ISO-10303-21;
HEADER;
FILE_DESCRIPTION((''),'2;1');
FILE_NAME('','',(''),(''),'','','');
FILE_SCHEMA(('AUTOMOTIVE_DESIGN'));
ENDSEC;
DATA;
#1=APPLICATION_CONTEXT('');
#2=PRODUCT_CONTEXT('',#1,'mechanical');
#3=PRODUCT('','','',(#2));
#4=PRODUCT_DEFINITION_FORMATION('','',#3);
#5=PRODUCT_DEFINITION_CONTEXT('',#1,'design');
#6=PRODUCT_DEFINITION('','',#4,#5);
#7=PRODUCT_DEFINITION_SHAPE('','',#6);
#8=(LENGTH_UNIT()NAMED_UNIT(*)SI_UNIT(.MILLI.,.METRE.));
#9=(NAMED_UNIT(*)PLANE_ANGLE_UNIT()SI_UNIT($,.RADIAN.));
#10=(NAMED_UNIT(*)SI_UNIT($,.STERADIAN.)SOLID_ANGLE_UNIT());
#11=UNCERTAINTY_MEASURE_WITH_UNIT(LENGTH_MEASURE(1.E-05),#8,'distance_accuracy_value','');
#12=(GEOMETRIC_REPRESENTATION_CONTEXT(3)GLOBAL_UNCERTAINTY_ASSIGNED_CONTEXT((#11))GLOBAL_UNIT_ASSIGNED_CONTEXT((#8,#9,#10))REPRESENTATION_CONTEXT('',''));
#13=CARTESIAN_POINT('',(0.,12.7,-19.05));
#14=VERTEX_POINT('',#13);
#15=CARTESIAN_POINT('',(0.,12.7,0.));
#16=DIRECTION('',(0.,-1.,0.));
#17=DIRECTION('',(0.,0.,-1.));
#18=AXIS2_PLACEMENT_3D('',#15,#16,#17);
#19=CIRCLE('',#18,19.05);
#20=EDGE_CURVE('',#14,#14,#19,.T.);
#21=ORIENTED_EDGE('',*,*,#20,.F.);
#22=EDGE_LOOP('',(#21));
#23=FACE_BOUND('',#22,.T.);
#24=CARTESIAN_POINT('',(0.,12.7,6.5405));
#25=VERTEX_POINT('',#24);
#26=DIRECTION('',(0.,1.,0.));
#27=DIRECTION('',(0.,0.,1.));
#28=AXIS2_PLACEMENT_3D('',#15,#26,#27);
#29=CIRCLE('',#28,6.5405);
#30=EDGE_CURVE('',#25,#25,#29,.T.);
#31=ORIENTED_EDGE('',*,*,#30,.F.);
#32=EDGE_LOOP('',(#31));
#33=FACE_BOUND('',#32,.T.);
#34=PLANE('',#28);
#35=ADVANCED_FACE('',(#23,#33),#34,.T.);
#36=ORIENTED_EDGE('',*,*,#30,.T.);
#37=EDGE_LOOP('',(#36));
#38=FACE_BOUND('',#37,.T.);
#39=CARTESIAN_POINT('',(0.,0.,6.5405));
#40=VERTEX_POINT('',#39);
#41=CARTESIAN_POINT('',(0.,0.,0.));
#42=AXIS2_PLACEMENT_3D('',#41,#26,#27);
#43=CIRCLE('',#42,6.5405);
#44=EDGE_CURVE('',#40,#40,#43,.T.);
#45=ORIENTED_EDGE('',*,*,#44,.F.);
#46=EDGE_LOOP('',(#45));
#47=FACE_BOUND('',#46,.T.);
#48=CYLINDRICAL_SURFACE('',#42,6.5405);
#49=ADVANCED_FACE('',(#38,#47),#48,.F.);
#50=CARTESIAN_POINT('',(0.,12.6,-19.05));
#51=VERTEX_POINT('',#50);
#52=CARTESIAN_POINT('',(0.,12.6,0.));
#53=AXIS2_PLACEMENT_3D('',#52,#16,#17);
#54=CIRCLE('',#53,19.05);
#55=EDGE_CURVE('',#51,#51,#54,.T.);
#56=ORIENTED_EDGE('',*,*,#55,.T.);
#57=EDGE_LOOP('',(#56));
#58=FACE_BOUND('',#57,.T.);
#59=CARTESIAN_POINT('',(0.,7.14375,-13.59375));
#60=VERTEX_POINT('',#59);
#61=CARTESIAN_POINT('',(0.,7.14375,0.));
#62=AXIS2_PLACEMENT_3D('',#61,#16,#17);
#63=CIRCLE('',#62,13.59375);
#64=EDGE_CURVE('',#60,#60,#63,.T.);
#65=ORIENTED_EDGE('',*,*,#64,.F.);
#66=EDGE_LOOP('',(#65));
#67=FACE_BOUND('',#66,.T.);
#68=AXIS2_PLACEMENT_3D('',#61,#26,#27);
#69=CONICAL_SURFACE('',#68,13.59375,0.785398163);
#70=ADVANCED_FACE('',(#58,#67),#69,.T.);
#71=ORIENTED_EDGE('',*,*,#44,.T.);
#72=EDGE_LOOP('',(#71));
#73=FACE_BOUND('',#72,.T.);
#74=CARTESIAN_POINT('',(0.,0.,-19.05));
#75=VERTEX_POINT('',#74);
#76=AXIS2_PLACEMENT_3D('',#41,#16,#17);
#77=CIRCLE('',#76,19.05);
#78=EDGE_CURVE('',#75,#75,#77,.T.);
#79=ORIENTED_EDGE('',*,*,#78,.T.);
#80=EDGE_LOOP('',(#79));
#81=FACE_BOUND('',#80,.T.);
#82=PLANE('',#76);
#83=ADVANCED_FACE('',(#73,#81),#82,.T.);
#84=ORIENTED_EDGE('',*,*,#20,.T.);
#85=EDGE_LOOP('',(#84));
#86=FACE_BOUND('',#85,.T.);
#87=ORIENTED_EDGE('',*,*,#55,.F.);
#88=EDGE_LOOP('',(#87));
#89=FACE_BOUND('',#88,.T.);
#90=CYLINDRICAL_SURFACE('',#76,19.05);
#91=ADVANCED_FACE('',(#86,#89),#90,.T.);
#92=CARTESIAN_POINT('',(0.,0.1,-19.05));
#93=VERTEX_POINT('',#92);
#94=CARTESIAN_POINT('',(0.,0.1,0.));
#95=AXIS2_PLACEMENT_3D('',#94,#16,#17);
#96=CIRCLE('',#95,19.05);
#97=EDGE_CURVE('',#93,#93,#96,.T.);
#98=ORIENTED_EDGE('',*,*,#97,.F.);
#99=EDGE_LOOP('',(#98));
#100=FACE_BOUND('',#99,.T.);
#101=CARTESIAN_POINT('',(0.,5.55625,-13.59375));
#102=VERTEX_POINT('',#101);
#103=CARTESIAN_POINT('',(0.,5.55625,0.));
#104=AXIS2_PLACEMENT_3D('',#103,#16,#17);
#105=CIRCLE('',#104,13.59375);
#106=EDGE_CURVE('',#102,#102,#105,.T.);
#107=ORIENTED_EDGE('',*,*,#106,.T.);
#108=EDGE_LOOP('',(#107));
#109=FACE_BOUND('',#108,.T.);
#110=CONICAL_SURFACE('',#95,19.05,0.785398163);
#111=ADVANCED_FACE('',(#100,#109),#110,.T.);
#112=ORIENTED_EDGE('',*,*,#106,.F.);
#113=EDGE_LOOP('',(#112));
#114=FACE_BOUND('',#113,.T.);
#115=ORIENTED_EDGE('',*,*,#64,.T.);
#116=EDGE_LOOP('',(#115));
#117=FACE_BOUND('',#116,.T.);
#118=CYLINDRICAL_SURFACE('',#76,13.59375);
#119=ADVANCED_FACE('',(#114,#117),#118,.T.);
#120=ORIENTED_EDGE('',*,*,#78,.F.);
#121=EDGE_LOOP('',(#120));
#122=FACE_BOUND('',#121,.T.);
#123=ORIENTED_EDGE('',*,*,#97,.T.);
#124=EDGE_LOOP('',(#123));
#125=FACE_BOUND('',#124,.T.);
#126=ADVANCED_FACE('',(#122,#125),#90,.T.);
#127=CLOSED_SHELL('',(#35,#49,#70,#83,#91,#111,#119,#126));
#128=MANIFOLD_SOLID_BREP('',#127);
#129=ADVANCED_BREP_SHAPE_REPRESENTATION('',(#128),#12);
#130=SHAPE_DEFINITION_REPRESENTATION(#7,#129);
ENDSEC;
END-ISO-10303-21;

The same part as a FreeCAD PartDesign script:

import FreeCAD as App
import Part
import Sketcher

V = App.Vector
Q = App.Units.Quantity

doc = App.newDocument("Part")
params = doc.addObject("Spreadsheet::Sheet", "Params")
for row, (alias, value) in enumerate([
    ("sketch1_height", "0.5 in"),
    ("sketch1_width", "0.75 in"),
    ("sketch1_height2", "0.0625 in"),
    ("revolution_angle", "360 deg"),
    ("sketch2_diameter", "0.515 in"),
], start=1):
    params.set(f"A{row}", alias)
    params.set(f"B{row}", "=" + value)
    params.setAlias(f"B{row}", alias)

body = doc.addObject("PartDesign::Body", "Body")

# Sketch on XY plane
sketch1 = body.newObject("Sketcher::SketchObject", "Sketch")
sketch1.AttachmentSupport = (doc.getObject("XY_Plane"), [""])
sketch1.MapMode = "FlatFace"
sketch1.addGeometry([
    Part.LineSegment(V(0, 0, 0), V(19.05, 0, 0)),  # 0
    Part.LineSegment(V(19.05, 0, 0), V(19.05, 0.1, 0)),  # 1
    Part.LineSegment(V(19.05, 0.1, 0), V(13.59, 5.56, 0)),  # 2
    Part.LineSegment(V(13.59, 5.56, 0), V(13.59, 7.14, 0)),  # 3
    Part.LineSegment(V(13.59, 7.14, 0), V(19.05, 12.6, 0)),  # 4
    Part.LineSegment(V(19.05, 12.6, 0), V(19.05, 12.7, 0)),  # 5
    Part.LineSegment(V(19.05, 12.7, 0), V(0, 12.7, 0)),  # 6
    Part.LineSegment(V(0, 12.7, 0), V(0, 0, 0)),  # 7
], False)
sketch1.addConstraint([
    Sketcher.Constraint("Coincident", 0, 2, 1, 1),
    Sketcher.Constraint("Coincident", 1, 2, 2, 1),
    Sketcher.Constraint("Coincident", 2, 2, 3, 1),
    Sketcher.Constraint("Coincident", 3, 2, 4, 1),
    Sketcher.Constraint("Coincident", 4, 2, 5, 1),
    Sketcher.Constraint("Coincident", 5, 2, 6, 1),
    Sketcher.Constraint("Coincident", 6, 2, 7, 1),
    Sketcher.Constraint("Coincident", 7, 2, 0, 1),
    Sketcher.Constraint("Horizontal", 0),
    Sketcher.Constraint("Vertical", 1),
    Sketcher.Constraint("Vertical", 3),
    Sketcher.Constraint("Vertical", 5),
    Sketcher.Constraint("Horizontal", 6),
    Sketcher.Constraint("Vertical", 7),
    Sketcher.Constraint("Coincident", 7, 2, -1, 1),
    Sketcher.Constraint("Perpendicular", 2, 4),
    Sketcher.Constraint("Vertical", 1, 2, 4, 2),
    Sketcher.Constraint("Equal", 1, 5),
    Sketcher.Constraint("Equal", 2, 4),
    Sketcher.Constraint("DistanceY", 7, 2, 7, 1, Q("0.5 in")),
    Sketcher.Constraint("DistanceX", 0, 1, 0, 2, Q("0.75 in")),
    Sketcher.Constraint("DistanceY", 3, 1, 3, 2, Q("0.0625 in")),
    Sketcher.Constraint("DistanceY", 1, 1, 1, 2, 0.1),
])
sketch1.setExpression("Constraints[19]", "Params.sketch1_height")
sketch1.setExpression("Constraints[20]", "Params.sketch1_width")
sketch1.setExpression("Constraints[21]", "Params.sketch1_height2")
revolution = body.newObject("PartDesign::Revolution", "Revolution")
revolution.Profile = sketch1
revolution.ReferenceAxis = (sketch1, ["V_Axis"])
revolution.setExpression("Angle", "Params.revolution_angle")

# Sketch on XZ plane
sketch2 = body.newObject("Sketcher::SketchObject", "Sketch001")
sketch2.AttachmentSupport = (doc.getObject("XZ_Plane"), [""])
sketch2.MapMode = "FlatFace"
sketch2.AttachmentOffset = App.Placement(V(0, 0, -0.5 * 25.4), App.Rotation())
sketch2.addGeometry(Part.Circle(V(0, 0, 0), V(0, 0, 1), 7), False)
sketch2.addConstraint([
    Sketcher.Constraint("Coincident", 0, 3, -1, 1),
    Sketcher.Constraint("Diameter", 0, Q("0.515 in")),
])
sketch2.setExpression("Constraints[1]", "Params.sketch2_diameter")
pocket1 = body.newObject("PartDesign::Pocket", "Pocket")
pocket1.Profile = sketch2
pocket1.Type = "ThroughAll"
pocket1.Reversed = True

doc.recompute()
